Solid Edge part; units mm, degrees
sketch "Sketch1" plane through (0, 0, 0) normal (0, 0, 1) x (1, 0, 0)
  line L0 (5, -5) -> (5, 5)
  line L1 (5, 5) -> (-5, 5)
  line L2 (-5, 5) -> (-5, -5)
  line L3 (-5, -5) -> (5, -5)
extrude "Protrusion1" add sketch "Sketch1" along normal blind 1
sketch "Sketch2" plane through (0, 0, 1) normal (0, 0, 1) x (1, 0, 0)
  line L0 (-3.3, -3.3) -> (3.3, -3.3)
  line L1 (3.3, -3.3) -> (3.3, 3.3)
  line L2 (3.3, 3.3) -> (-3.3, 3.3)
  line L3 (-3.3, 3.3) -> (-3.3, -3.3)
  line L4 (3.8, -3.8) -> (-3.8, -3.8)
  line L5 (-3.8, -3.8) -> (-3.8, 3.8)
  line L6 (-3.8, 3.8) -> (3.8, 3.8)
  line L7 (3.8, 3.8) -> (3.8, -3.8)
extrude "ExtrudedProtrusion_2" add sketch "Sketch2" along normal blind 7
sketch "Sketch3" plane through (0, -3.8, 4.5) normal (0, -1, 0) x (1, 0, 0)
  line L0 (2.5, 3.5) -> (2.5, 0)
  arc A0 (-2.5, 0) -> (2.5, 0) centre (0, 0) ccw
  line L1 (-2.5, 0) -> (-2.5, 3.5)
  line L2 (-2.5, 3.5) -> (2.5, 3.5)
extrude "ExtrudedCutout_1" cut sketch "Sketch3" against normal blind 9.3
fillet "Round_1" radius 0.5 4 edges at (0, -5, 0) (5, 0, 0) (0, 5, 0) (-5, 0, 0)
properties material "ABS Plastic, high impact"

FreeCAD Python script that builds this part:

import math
import FreeCAD as App
import Part
import Sketcher


def edges_at(feature, points):
    """Names of the edges that pass closest to the given points."""
    edges = feature.Shape.Edges
    near = lambda p: min(range(len(edges)), key=lambda i: edges[i].distToShape(Part.Vertex(*p))[0])
    return sorted({f"Edge{near(p) + 1}" for p in points})

doc = App.newDocument("Part")
body = doc.addObject("PartDesign::Body", "Body")

sketch1 = body.newObject("Sketcher::SketchObject", "Sketch")
sketch1.AttachmentSupport = (doc.getObject("XY_Plane"), [""])
sketch1.MapMode = "FlatFace"
sketch1.addGeometry(Part.LineSegment(App.Vector(-5, -5, 0), App.Vector(5, -5, 0)), False)
sketch1.addGeometry(Part.LineSegment(App.Vector(5, -5, 0), App.Vector(5, 5, 0)), False)
sketch1.addGeometry(Part.LineSegment(App.Vector(5, 5, 0), App.Vector(-5, 5, 0)), False)
sketch1.addGeometry(Part.LineSegment(App.Vector(-5, 5, 0), App.Vector(-5, -5, 0)), False)
sketch1.addConstraint(Sketcher.Constraint("Coincident", 0, 2, 1, 1))
sketch1.addConstraint(Sketcher.Constraint("Coincident", 1, 2, 2, 1))
sketch1.addConstraint(Sketcher.Constraint("Coincident", 2, 2, 3, 1))
sketch1.addConstraint(Sketcher.Constraint("Coincident", 3, 2, 0, 1))
sketch1.addConstraint(Sketcher.Constraint("Horizontal", 0))
sketch1.addConstraint(Sketcher.Constraint("Vertical", 1))
sketch1.addConstraint(Sketcher.Constraint("Horizontal", 2))
sketch1.addConstraint(Sketcher.Constraint("Vertical", 3))
sketch1.addConstraint(Sketcher.Constraint("Symmetric", 0, 2, 2, 2, -1, 1))
sketch1.addConstraint(Sketcher.Constraint("Equal", 2, 1))
sketch1.addConstraint(Sketcher.Constraint("DistanceX", 0, 1, 0, 2, 10.0))
pad1 = body.newObject("PartDesign::Pad", "Pad")
pad1.Profile = sketch1
pad1.Length = 1

sketch2 = body.newObject("Sketcher::SketchObject", "Sketch001")
sketch2.AttachmentSupport = (doc.getObject("XY_Plane"), [""])
sketch2.MapMode = "FlatFace"
sketch2.AttachmentOffset = App.Placement(App.Vector(0, 0, 1), App.Rotation())
sketch2.addGeometry(Part.LineSegment(App.Vector(-4, -4, 0), App.Vector(4, -4, 0)), False)
sketch2.addGeometry(Part.LineSegment(App.Vector(4, -4, 0), App.Vector(4, 4, 0)), False)
sketch2.addGeometry(Part.LineSegment(App.Vector(4, 4, 0), App.Vector(-4, 4, 0)), False)
sketch2.addGeometry(Part.LineSegment(App.Vector(-4, 4, 0), App.Vector(-4, -4, 0)), False)
sketch2.addGeometry(Part.LineSegment(App.Vector(3, -3, 0), App.Vector(-3, -3, 0)), False)
sketch2.addGeometry(Part.LineSegment(App.Vector(-3, -3, 0), App.Vector(-3, 3, 0)), False)
sketch2.addGeometry(Part.LineSegment(App.Vector(-3, 3, 0), App.Vector(3, 3, 0)), False)
sketch2.addGeometry(Part.LineSegment(App.Vector(3, 3, 0), App.Vector(3, -3, 0)), False)
sketch2.addConstraint(Sketcher.Constraint("Coincident", 0, 2, 1, 1))
sketch2.addConstraint(Sketcher.Constraint("Coincident", 1, 2, 2, 1))
sketch2.addConstraint(Sketcher.Constraint("Coincident", 2, 2, 3, 1))
sketch2.addConstraint(Sketcher.Constraint("Coincident", 3, 2, 0, 1))
sketch2.addConstraint(Sketcher.Constraint("Coincident", 4, 2, 5, 1))
sketch2.addConstraint(Sketcher.Constraint("Coincident", 5, 2, 6, 1))
sketch2.addConstraint(Sketcher.Constraint("Coincident", 6, 2, 7, 1))
sketch2.addConstraint(Sketcher.Constraint("Coincident", 7, 2, 4, 1))
sketch2.addConstraint(Sketcher.Constraint("Horizontal", 0))
sketch2.addConstraint(Sketcher.Constraint("Vertical", 1))
sketch2.addConstraint(Sketcher.Constraint("Horizontal", 2))
sketch2.addConstraint(Sketcher.Constraint("Vertical", 3))
sketch2.addConstraint(Sketcher.Constraint("Horizontal", 4))
sketch2.addConstraint(Sketcher.Constraint("Vertical", 5))
sketch2.addConstraint(Sketcher.Constraint("Horizontal", 6))
sketch2.addConstraint(Sketcher.Constraint("Vertical", 7))
sketch2.addConstraint(Sketcher.Constraint("Symmetric", 0, 2, 2, 2, -1, 1))
sketch2.addConstraint(Sketcher.Constraint("Symmetric", 4, 2, 6, 2, -1, 1))
sketch2.addConstraint(Sketcher.Constraint("Equal", 2, 1))
sketch2.addConstraint(Sketcher.Constraint("Equal", 6, 5))
sketch2.addConstraint(Sketcher.Constraint("DistanceX", 0, 1, 0, 2, 7.6))
sketch2.addConstraint(Sketcher.Constraint("DistanceX", 4, 2, 4, 1, 6.6))
pad2 = body.newObject("PartDesign::Pad", "Pad001")
pad2.Profile = sketch2
pad2.Length = 7

sketch3 = body.newObject("Sketcher::SketchObject", "Sketch002")
sketch3.AttachmentSupport = (doc.getObject("XZ_Plane"), [""])
sketch3.MapMode = "FlatFace"
sketch3.AttachmentOffset = App.Placement(App.Vector(0, 0, 3.8), App.Rotation())
sketch3.addGeometry(Part.LineSegment(App.Vector(2.5, 4.5, 0), App.Vector(2.5, 8, 0)), False)
sketch3.addGeometry(Part.LineSegment(App.Vector(2.5, 8, 0), App.Vector(-2.5, 8, 0)), False)
sketch3.addGeometry(Part.LineSegment(App.Vector(-2.5, 8, 0), App.Vector(-2.5, 4.5, 0)), False)
sketch3.addGeometry(Part.ArcOfCircle(Part.Circle(App.Vector(0, 4.5, 0), App.Vector(0, 0, 1), 2.5), math.radians(180), math.radians(360)), False)
sketch3.addConstraint(Sketcher.Constraint("Coincident", 0, 2, 1, 1))
sketch3.addConstraint(Sketcher.Constraint("Coincident", 1, 2, 2, 1))
sketch3.addConstraint(Sketcher.Constraint("Tangent", 2, 2, 3, 1))
sketch3.addConstraint(Sketcher.Constraint("Tangent", 3, 2, 0, 1))
sketch3.addConstraint(Sketcher.Constraint("Vertical", 0))
sketch3.addConstraint(Sketcher.Constraint("Horizontal", 1))
sketch3.addConstraint(Sketcher.Constraint("Vertical", 2))
sketch3.addConstraint(Sketcher.Constraint("PointOnObject", 3, 3, -2))
sketch3.addConstraint(Sketcher.Constraint("Radius", 3, 2.5))
sketch3.addConstraint(Sketcher.Constraint("DistanceY", 0, 1, 0, 2, 3.5))
sketch3.addConstraint(Sketcher.Constraint("DistanceY", -1, 1, 0, 2, 8.0))
pocket1 = body.newObject("PartDesign::Pocket", "Pocket")
pocket1.Profile = sketch3
pocket1.Length = 9.3
doc.recompute()

fillet = body.newObject("PartDesign::Fillet", "Fillet")
fillet.Base = (pocket1, edges_at(pocket1, [
    (0, -5, 0),
    (5, 0, 0),
    (0, 5, 0),
    (-5, 0, 0),
]))
fillet.Radius = 0.5

doc.recompute()
